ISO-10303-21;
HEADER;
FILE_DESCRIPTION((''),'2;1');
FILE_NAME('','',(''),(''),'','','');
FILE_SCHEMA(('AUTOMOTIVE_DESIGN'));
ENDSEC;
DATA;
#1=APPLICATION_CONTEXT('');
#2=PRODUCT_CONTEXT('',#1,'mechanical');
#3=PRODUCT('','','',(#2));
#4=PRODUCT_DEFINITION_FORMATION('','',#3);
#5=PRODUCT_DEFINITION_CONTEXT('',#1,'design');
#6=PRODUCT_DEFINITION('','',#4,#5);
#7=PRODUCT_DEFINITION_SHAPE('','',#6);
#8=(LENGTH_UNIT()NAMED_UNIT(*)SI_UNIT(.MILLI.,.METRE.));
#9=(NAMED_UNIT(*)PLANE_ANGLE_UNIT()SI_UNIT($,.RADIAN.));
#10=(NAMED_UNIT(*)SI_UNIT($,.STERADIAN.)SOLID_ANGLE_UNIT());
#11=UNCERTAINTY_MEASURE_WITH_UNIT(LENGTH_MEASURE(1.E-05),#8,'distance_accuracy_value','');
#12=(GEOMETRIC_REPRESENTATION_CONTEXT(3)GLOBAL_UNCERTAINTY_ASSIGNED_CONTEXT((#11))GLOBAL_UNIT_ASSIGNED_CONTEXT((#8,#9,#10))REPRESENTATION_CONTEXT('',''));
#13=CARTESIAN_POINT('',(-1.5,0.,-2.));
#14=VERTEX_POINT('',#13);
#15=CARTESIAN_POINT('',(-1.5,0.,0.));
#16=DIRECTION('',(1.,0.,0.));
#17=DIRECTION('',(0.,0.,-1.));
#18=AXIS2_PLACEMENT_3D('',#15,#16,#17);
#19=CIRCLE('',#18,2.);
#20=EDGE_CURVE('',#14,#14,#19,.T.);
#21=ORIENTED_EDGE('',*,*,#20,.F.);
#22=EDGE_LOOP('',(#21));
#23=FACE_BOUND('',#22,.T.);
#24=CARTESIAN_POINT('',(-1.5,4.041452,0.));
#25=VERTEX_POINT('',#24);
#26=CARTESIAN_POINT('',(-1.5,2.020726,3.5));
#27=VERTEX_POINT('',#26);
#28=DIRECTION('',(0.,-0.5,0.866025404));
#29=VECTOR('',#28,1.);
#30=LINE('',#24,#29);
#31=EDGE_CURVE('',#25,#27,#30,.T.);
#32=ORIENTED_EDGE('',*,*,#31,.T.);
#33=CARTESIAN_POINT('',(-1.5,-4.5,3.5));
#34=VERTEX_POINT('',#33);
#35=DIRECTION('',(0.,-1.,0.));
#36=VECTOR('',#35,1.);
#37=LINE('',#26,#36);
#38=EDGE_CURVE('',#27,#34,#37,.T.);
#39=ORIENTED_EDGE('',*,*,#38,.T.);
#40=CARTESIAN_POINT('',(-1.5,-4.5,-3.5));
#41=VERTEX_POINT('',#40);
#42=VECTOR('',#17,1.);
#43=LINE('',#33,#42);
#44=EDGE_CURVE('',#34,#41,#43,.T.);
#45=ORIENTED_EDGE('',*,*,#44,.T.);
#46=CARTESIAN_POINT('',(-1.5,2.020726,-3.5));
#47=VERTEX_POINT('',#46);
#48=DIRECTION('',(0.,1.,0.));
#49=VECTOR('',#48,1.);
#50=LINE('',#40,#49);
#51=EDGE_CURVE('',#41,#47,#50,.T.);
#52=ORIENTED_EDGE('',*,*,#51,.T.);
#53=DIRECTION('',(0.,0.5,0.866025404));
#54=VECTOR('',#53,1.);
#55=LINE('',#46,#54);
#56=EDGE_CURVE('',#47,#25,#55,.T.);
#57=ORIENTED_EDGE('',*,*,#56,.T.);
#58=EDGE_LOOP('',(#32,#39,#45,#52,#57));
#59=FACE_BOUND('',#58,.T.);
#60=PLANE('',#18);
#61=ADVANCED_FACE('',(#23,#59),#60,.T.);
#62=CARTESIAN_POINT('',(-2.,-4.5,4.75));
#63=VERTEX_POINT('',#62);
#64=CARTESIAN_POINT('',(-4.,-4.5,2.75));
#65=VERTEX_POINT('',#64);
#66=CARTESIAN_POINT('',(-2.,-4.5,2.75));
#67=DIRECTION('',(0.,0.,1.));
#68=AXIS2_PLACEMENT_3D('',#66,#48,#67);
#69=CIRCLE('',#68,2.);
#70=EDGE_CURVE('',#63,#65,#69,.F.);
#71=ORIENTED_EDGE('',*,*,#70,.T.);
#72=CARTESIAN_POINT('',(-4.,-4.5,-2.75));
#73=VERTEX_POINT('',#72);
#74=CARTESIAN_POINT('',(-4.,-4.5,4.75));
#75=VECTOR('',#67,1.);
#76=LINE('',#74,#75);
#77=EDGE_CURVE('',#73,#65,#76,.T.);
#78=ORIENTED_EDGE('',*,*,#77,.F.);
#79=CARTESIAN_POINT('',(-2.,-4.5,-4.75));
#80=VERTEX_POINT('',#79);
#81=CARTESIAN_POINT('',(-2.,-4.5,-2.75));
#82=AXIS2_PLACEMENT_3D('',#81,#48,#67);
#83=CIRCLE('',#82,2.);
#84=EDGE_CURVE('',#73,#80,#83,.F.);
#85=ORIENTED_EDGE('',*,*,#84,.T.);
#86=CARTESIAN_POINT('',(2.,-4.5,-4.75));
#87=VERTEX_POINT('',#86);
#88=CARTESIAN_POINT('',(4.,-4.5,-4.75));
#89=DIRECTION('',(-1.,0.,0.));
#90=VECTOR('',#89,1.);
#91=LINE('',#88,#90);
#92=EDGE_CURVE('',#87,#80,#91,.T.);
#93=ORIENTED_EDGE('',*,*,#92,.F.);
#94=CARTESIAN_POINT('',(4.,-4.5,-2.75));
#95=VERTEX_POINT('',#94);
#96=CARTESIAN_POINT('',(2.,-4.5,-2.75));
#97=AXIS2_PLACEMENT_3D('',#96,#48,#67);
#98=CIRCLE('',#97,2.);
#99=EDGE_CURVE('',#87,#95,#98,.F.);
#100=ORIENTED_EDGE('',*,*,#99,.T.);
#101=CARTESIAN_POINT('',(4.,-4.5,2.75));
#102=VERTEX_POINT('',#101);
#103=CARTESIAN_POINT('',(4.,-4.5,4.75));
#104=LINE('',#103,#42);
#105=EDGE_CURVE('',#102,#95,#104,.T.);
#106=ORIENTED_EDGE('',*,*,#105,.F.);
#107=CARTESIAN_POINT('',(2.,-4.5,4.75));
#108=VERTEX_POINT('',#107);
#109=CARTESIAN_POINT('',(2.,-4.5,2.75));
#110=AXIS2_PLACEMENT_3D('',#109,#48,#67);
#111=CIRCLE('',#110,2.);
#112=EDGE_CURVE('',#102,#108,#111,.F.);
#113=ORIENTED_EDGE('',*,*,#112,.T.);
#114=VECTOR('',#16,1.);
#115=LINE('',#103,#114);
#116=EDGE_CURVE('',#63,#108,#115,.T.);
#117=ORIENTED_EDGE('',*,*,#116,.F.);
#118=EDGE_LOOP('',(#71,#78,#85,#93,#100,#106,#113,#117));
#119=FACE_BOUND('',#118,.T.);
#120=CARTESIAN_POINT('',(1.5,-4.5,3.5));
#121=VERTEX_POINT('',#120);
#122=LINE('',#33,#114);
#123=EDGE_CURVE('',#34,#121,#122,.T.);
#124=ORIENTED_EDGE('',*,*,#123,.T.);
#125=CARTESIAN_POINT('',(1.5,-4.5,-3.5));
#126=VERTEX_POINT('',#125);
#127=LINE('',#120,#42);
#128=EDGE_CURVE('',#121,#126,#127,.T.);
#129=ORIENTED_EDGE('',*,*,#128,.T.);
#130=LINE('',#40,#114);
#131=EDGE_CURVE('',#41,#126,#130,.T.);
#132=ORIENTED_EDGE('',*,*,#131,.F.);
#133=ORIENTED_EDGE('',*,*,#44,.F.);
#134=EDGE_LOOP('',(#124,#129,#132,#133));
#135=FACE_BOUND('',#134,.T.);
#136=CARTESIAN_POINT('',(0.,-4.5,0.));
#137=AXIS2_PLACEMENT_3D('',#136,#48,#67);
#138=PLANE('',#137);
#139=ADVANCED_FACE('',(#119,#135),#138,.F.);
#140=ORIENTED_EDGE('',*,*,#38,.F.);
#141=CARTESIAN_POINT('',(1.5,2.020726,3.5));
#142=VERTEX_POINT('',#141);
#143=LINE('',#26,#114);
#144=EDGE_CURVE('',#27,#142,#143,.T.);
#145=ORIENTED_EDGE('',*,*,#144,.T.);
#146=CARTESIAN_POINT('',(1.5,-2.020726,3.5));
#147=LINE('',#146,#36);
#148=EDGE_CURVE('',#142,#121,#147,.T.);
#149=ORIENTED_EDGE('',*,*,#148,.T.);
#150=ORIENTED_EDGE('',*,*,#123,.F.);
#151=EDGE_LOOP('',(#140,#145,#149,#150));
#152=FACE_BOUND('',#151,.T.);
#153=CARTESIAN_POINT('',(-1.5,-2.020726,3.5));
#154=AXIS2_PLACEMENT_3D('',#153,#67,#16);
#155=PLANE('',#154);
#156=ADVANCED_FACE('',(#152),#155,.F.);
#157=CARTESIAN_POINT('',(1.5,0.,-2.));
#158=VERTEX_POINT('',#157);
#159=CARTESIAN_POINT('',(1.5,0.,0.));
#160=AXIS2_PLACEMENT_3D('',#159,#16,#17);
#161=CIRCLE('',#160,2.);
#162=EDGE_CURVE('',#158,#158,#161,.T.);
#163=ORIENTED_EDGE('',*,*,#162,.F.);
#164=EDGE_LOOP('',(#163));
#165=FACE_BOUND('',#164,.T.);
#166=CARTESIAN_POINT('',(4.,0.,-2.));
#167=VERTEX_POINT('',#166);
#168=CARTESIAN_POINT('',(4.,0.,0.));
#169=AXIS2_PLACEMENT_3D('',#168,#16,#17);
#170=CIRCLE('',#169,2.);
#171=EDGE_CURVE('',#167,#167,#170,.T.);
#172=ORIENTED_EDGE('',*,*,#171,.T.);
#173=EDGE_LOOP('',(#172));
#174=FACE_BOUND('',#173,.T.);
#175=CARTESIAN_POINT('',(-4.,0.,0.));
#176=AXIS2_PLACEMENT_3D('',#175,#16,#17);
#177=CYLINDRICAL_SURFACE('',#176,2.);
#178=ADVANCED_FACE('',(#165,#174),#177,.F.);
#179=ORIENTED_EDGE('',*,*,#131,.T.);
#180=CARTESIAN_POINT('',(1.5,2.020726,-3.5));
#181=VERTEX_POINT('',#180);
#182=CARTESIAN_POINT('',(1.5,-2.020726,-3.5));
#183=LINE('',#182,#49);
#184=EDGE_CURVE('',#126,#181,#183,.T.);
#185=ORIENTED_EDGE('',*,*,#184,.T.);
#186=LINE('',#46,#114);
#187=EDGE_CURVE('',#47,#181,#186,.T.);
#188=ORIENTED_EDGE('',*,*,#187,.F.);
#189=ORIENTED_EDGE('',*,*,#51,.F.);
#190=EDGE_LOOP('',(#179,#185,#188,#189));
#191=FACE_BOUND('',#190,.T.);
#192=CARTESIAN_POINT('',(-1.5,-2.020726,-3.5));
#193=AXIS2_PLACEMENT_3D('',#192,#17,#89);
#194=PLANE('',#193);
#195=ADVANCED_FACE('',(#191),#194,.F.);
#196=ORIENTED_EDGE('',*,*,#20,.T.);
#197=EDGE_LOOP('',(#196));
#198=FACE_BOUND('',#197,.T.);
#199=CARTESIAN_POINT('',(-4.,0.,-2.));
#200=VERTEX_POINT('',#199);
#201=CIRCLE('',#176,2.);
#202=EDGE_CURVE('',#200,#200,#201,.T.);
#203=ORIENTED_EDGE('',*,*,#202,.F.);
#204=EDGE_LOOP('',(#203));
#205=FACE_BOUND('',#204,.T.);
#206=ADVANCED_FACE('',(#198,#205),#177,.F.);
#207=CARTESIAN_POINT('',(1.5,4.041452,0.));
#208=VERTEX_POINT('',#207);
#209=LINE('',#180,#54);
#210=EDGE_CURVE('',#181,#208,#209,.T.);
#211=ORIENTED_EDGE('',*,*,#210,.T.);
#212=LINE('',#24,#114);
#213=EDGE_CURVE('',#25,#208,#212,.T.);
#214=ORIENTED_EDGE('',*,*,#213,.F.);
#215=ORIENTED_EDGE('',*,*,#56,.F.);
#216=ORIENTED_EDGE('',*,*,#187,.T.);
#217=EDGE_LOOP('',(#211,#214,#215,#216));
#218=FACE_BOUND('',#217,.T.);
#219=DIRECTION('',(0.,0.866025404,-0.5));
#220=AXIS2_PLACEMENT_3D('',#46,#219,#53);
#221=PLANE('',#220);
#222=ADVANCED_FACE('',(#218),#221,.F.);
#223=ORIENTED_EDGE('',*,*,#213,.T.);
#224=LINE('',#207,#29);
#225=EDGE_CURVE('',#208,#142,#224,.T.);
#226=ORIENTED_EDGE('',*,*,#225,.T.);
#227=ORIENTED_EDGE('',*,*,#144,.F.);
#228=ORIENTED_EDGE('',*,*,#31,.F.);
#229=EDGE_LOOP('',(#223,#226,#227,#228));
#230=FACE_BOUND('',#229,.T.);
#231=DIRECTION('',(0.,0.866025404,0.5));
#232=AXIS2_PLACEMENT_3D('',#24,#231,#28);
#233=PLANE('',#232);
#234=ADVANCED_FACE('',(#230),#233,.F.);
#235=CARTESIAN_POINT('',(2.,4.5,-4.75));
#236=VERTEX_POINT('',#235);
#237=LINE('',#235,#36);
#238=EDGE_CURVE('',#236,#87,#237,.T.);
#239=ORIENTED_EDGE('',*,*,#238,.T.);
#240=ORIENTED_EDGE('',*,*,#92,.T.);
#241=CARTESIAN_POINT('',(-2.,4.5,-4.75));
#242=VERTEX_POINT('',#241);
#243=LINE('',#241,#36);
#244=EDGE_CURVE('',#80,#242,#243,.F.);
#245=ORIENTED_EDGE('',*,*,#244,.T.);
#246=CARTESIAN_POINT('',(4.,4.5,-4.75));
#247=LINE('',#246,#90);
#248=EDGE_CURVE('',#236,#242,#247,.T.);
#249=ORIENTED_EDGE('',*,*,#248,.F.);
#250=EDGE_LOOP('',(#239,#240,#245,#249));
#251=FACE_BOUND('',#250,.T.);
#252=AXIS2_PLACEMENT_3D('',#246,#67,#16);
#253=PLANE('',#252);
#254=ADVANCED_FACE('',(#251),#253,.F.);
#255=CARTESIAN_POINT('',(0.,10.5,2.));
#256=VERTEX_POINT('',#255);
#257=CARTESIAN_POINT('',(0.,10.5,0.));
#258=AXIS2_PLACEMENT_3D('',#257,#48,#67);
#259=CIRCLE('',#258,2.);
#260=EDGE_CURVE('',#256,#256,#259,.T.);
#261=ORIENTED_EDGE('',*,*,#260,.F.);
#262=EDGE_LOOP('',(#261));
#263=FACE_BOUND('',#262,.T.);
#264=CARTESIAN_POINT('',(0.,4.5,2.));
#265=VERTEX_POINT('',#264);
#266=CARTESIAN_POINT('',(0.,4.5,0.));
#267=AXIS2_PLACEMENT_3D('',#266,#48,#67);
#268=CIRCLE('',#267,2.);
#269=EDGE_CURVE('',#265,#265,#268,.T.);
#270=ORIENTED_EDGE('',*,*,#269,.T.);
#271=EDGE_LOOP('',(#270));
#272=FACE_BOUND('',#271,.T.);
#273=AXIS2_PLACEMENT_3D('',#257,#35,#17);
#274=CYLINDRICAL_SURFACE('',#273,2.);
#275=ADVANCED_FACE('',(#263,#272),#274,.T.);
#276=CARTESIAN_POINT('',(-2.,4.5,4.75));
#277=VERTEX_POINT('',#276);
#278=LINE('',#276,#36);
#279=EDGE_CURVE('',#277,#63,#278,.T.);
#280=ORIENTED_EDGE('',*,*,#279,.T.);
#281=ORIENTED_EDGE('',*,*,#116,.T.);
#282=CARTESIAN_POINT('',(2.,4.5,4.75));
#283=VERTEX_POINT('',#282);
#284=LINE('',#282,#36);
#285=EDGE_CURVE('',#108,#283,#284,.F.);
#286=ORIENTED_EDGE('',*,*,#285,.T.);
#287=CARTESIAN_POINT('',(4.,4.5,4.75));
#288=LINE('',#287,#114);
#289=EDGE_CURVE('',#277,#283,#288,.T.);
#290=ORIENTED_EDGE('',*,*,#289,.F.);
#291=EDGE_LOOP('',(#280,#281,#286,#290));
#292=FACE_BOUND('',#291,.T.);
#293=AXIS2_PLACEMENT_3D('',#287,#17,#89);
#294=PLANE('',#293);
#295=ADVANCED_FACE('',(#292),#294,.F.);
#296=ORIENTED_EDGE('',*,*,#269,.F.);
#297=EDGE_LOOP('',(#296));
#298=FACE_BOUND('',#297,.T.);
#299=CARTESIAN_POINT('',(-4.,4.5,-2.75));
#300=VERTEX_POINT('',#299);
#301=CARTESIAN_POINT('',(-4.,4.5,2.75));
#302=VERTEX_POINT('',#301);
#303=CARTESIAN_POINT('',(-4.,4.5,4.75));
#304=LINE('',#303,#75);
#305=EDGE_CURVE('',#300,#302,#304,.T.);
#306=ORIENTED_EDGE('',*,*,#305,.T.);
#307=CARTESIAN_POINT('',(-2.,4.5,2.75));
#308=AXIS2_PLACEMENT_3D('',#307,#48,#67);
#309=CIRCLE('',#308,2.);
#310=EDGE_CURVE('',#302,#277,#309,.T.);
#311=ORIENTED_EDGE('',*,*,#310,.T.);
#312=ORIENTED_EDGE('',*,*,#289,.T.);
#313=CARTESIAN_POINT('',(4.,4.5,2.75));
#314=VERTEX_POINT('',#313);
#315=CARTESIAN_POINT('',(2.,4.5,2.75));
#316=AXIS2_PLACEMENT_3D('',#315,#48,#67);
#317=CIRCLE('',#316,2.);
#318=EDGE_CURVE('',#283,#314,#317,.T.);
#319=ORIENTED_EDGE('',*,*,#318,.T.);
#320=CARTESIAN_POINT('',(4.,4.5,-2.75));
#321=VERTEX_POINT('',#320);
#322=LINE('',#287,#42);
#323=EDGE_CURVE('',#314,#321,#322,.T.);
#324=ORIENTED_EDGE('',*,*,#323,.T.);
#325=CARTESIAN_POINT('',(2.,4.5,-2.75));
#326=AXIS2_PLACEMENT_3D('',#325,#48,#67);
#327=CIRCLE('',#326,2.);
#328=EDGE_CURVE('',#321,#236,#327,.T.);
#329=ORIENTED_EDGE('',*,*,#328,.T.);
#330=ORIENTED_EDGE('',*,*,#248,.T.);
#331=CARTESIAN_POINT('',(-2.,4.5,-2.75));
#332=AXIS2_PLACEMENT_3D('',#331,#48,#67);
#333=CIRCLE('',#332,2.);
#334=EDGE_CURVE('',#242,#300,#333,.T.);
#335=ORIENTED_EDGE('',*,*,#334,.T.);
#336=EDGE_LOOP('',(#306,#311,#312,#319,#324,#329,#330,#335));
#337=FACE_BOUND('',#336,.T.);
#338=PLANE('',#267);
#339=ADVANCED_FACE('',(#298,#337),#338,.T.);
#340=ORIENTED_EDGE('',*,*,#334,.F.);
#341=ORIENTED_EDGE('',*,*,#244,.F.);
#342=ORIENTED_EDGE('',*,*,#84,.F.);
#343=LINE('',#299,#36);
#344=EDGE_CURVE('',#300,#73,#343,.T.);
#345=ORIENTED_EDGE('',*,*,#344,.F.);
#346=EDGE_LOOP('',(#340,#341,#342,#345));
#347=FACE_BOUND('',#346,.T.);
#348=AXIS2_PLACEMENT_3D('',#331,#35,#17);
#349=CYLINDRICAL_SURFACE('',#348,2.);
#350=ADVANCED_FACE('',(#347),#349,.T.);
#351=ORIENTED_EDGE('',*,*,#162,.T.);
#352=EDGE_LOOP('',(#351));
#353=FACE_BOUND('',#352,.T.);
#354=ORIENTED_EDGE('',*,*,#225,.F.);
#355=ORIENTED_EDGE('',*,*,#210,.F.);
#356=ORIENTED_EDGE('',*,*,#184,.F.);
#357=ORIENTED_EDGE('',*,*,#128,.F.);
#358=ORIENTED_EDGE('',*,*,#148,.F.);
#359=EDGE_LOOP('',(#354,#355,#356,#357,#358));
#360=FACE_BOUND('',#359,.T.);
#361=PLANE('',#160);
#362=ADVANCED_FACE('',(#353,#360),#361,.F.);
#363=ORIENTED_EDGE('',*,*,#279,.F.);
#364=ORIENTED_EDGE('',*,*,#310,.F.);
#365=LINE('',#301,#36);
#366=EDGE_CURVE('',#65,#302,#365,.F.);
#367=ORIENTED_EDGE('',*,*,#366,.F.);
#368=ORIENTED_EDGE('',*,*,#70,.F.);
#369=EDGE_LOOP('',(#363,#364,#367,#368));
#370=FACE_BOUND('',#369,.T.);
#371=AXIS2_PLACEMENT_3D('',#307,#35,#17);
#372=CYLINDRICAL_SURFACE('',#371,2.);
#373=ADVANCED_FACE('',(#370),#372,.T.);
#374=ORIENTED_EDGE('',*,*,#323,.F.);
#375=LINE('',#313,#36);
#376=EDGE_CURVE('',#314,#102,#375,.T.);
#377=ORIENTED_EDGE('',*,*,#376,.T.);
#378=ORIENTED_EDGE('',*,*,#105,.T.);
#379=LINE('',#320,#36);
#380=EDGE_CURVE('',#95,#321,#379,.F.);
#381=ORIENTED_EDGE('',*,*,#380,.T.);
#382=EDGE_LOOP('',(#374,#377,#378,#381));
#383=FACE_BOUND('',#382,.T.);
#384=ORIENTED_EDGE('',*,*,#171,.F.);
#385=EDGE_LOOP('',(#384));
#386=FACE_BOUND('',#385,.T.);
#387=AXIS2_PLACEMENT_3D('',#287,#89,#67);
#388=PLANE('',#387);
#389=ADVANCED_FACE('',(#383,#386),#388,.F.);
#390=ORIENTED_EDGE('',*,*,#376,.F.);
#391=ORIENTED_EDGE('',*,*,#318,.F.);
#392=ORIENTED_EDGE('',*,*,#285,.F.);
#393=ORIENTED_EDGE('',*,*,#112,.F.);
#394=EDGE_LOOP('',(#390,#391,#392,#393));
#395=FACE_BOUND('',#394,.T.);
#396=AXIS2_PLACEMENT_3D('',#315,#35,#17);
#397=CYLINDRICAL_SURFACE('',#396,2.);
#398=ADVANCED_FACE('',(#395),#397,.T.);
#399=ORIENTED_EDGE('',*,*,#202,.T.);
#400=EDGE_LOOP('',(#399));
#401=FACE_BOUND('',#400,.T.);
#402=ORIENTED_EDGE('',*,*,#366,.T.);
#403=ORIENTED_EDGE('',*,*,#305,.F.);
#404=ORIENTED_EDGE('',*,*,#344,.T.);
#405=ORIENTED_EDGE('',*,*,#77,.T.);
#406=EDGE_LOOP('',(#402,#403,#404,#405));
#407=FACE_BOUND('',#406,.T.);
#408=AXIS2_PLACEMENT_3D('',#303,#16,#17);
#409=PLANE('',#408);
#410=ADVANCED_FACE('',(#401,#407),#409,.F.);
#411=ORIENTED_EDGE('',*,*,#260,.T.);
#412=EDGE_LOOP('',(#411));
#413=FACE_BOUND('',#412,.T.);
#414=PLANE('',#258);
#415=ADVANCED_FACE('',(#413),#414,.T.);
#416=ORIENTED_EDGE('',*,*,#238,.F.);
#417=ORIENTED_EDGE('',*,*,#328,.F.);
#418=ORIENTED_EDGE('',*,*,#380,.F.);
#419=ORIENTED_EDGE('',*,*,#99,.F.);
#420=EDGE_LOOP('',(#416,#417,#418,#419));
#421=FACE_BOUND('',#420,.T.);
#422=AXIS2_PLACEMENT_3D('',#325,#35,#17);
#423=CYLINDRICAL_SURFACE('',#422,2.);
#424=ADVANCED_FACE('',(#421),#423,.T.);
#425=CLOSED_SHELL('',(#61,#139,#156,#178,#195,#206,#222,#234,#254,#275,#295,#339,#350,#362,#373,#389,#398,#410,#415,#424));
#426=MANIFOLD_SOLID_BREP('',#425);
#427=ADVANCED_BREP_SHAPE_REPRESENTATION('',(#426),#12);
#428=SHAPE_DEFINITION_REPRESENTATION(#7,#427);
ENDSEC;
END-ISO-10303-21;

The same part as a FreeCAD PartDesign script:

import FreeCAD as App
import Part
import Sketcher
Q = App.Units.Quantity


def edges_at(feature, points):
    """Names of the edges that pass closest to the given points."""
    edges = feature.Shape.Edges
    near = lambda p: min(range(len(edges)), key=lambda i: edges[i].distToShape(Part.Vertex(*p))[0])
    return sorted({f"Edge{near(p) + 1}" for p in points})


def add_polygon(sketch, points):
    """Adds a closed chain of lines whose ends are joined by coincident constraints."""
    first, n = sketch.GeometryCount, len(points)
    for a, b in zip(points, points[1:] + points[:1]):
        sketch.addGeometry(Part.LineSegment(App.Vector(*a, 0), App.Vector(*b, 0)), False)
    for i in range(n):
        sketch.addConstraint(Sketcher.Constraint("Coincident", first + i, 2, first + (i + 1) % n, 1))

doc = App.newDocument("Part")
body = doc.addObject("PartDesign::Body", "Body")

# Sketch on XZ plane
sketch1 = body.newObject("Sketcher::SketchObject", "Sketch")
sketch1.AttachmentSupport = (doc.getObject("XZ_Plane"), [""])
sketch1.MapMode = "FlatFace"
add_polygon(sketch1, [(-4, -5), (-4, 5), (4, 5), (4, -5)])  # lines 0-3
sketch1.addConstraint([
    Sketcher.Constraint("Vertical", 0),
    Sketcher.Constraint("Horizontal", 1),
    Sketcher.Constraint("Vertical", 2),
    Sketcher.Constraint("Horizontal", 3),
    Sketcher.Constraint("Symmetric", 0, 2, 2, 2, -1, 1),
    Sketcher.Constraint("DistanceX", 1, 1, 1, 2, 8.0),
    Sketcher.Constraint("DistanceY", 0, 1, 0, 2, 9.5),
])
pad1 = body.newObject("PartDesign::Pad", "Pad")
pad1.Profile = sketch1
pad1.Length = 9
pad1.Midplane = True

# Sketch on XZ plane
sketch2 = body.newObject("Sketcher::SketchObject", "Sketch001")
sketch2.AttachmentSupport = (doc.getObject("XZ_Plane"), [""])
sketch2.MapMode = "FlatFace"
sketch2.AttachmentOffset = App.Placement(App.Vector(0, 0, -4.5), App.Rotation())
sketch2.addGeometry(Part.Circle(App.Vector(0, 0, 0), App.Vector(0, 0, 1), 2), False)
sketch2.addConstraint([
    Sketcher.Constraint("Coincident", 0, 3, -1, 1),
    Sketcher.Constraint("Diameter", 0, 4.0),
])
pad2 = body.newObject("PartDesign::Pad", "Pad001")
pad2.Profile = sketch2
pad2.Length = 6
pad2.Reversed = True

# Sketch on YZ plane
sketch3 = body.newObject("Sketcher::SketchObject", "Sketch002")
sketch3.AttachmentSupport = (doc.getObject("YZ_Plane"), [""])
sketch3.MapMode = "FlatFace"
add_polygon(sketch3, [(-4.5, 3.5), (-4.5, -3.5), (2, -3.5), (4, 0), (2, 3.5)])  # lines 0-4
sketch3.addConstraint([
    Sketcher.Constraint("Vertical", 0),
    Sketcher.Constraint("Horizontal", 1),
    Sketcher.Constraint("Horizontal", 4),
    Sketcher.Constraint("Symmetric", 1, 2, 3, 2, -1),
    Sketcher.Constraint("PointOnObject", 2, 2, -1),
    Sketcher.Constraint("DistanceY", 0, 2, 0, 1, 7.0),
    Sketcher.Constraint("Angle", 2, Q("60 deg")),
    Sketcher.Constraint("DistanceX", 0, 2, -1, 1, 4.5),
    Sketcher.Constraint("DistanceX", 1, 1, 1, 2, 6.520726),
])
pocket1 = body.newObject("PartDesign::Pocket", "Pocket")
pocket1.Profile = sketch3
pocket1.Length = 3
pocket1.Midplane = True

# Sketch on YZ plane
sketch4 = body.newObject("Sketcher::SketchObject", "Sketch003")
sketch4.AttachmentSupport = (doc.getObject("YZ_Plane"), [""])
sketch4.MapMode = "FlatFace"
sketch4.AttachmentOffset = App.Placement(App.Vector(0, 0, 4), App.Rotation())
sketch4.addGeometry(Part.Circle(App.Vector(0, 0, 0), App.Vector(0, 0, 1), 2), False)
sketch4.addConstraint([
    Sketcher.Constraint("Coincident", 0, 3, -1, 1),
    Sketcher.Constraint("Diameter", 0, 4.0),
])
pocket2 = body.newObject("PartDesign::Pocket", "Pocket001")
pocket2.Profile = sketch4
pocket2.Type = "ThroughAll"
doc.recompute()

fillet = body.newObject("PartDesign::Fillet", "Fillet")
fillet.Base = (pocket2, edges_at(pocket2, [
    (-4, 0, -4.75),
    (4, 0, -4.75),
    (4, 0, 4.75),
    (-4, 0, 4.75),
]))
fillet.Radius = 2

doc.recompute()
